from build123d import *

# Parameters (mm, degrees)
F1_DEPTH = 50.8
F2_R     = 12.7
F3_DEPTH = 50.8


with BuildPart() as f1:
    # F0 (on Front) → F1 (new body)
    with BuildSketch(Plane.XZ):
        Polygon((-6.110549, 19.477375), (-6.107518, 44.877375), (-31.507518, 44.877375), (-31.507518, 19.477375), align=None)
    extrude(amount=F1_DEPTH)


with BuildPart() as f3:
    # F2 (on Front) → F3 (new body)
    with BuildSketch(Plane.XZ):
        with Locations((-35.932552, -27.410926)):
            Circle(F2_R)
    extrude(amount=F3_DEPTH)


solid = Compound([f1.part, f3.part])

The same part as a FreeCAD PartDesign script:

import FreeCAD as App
import Part
import Sketcher
from FreeCAD import Vector
Q = App.Units.Quantity


def add_polygon(sketch, points):
    """Adds a closed chain of lines whose ends are joined by coincident constraints."""
    first, n = sketch.GeometryCount, len(points)
    for a, b in zip(points, points[1:] + points[:1]):
        sketch.addGeometry(Part.LineSegment(App.Vector(*a, 0), App.Vector(*b, 0)), False)
    for i in range(n):
        sketch.addConstraint(Sketcher.Constraint("Coincident", first + i, 2, first + (i + 1) % n, 1))

doc = App.newDocument("Part")
body = doc.addObject("PartDesign::Body", "Body")

sketch1 = doc.addObject("Sketcher::SketchObject", "Sketch")
body.addObject(sketch1)
sketch1.AttachmentSupport = (doc.XZ_Plane, [""])
sketch1.MapMode = "FlatFace"
add_polygon(sketch1, [(-6.110549, 19.477375), (-6.107518, 44.877375), (-31.507518, 44.877375), (-31.507518, 19.477375)])
sketch1.addConstraint([
    Sketcher.Constraint("Horizontal", 1),
    Sketcher.Constraint("Vertical", 2),
    Sketcher.Constraint("Horizontal", 3),
    Sketcher.Constraint("Equal", 1, 2),
    Sketcher.Constraint("DistanceX", 1, 2, 1, 1, Q("1 in")),
    Sketcher.Constraint("DistanceX", 3, 1, 3, 2, Q("25.396969 mm")),
    Sketcher.Constraint("DistanceX", 1, 2, -1, 1, Q("31.507518 mm")),
    Sketcher.Constraint("DistanceY", -1, 1, 0, 2, Q("44.877375 mm")),
])
pad1 = doc.addObject("PartDesign::Pad", "Pad")
body.addObject(pad1)
pad1.Profile = sketch1
pad1.Length = Q("2 in")
body2 = doc.addObject("PartDesign::Body", "Body001")

sketch2 = doc.addObject("Sketcher::SketchObject", "Sketch001")
body2.addObject(sketch2)
sketch2.AttachmentSupport = (doc.getObject("XZ_Plane001"), [""])
sketch2.MapMode = "FlatFace"
sketch2.addGeometry(Part.Circle(Vector(-35.932552, -27.410926, 0), Vector(0, 0, 1), 12.7), False)
sketch2.addConstraint([
    Sketcher.Constraint("Diameter", 0, Q("1 in")),
    Sketcher.Constraint("DistanceX", 0, 3, -1, 1, Q("35.932552 mm")),
    Sketcher.Constraint("DistanceY", 0, 3, -1, 1, Q("27.410926 mm")),
])
pad2 = doc.addObject("PartDesign::Pad", "Pad001")
body2.addObject(pad2)
pad2.Profile = sketch2
pad2.Length = Q("2 in")

doc.recompute()
